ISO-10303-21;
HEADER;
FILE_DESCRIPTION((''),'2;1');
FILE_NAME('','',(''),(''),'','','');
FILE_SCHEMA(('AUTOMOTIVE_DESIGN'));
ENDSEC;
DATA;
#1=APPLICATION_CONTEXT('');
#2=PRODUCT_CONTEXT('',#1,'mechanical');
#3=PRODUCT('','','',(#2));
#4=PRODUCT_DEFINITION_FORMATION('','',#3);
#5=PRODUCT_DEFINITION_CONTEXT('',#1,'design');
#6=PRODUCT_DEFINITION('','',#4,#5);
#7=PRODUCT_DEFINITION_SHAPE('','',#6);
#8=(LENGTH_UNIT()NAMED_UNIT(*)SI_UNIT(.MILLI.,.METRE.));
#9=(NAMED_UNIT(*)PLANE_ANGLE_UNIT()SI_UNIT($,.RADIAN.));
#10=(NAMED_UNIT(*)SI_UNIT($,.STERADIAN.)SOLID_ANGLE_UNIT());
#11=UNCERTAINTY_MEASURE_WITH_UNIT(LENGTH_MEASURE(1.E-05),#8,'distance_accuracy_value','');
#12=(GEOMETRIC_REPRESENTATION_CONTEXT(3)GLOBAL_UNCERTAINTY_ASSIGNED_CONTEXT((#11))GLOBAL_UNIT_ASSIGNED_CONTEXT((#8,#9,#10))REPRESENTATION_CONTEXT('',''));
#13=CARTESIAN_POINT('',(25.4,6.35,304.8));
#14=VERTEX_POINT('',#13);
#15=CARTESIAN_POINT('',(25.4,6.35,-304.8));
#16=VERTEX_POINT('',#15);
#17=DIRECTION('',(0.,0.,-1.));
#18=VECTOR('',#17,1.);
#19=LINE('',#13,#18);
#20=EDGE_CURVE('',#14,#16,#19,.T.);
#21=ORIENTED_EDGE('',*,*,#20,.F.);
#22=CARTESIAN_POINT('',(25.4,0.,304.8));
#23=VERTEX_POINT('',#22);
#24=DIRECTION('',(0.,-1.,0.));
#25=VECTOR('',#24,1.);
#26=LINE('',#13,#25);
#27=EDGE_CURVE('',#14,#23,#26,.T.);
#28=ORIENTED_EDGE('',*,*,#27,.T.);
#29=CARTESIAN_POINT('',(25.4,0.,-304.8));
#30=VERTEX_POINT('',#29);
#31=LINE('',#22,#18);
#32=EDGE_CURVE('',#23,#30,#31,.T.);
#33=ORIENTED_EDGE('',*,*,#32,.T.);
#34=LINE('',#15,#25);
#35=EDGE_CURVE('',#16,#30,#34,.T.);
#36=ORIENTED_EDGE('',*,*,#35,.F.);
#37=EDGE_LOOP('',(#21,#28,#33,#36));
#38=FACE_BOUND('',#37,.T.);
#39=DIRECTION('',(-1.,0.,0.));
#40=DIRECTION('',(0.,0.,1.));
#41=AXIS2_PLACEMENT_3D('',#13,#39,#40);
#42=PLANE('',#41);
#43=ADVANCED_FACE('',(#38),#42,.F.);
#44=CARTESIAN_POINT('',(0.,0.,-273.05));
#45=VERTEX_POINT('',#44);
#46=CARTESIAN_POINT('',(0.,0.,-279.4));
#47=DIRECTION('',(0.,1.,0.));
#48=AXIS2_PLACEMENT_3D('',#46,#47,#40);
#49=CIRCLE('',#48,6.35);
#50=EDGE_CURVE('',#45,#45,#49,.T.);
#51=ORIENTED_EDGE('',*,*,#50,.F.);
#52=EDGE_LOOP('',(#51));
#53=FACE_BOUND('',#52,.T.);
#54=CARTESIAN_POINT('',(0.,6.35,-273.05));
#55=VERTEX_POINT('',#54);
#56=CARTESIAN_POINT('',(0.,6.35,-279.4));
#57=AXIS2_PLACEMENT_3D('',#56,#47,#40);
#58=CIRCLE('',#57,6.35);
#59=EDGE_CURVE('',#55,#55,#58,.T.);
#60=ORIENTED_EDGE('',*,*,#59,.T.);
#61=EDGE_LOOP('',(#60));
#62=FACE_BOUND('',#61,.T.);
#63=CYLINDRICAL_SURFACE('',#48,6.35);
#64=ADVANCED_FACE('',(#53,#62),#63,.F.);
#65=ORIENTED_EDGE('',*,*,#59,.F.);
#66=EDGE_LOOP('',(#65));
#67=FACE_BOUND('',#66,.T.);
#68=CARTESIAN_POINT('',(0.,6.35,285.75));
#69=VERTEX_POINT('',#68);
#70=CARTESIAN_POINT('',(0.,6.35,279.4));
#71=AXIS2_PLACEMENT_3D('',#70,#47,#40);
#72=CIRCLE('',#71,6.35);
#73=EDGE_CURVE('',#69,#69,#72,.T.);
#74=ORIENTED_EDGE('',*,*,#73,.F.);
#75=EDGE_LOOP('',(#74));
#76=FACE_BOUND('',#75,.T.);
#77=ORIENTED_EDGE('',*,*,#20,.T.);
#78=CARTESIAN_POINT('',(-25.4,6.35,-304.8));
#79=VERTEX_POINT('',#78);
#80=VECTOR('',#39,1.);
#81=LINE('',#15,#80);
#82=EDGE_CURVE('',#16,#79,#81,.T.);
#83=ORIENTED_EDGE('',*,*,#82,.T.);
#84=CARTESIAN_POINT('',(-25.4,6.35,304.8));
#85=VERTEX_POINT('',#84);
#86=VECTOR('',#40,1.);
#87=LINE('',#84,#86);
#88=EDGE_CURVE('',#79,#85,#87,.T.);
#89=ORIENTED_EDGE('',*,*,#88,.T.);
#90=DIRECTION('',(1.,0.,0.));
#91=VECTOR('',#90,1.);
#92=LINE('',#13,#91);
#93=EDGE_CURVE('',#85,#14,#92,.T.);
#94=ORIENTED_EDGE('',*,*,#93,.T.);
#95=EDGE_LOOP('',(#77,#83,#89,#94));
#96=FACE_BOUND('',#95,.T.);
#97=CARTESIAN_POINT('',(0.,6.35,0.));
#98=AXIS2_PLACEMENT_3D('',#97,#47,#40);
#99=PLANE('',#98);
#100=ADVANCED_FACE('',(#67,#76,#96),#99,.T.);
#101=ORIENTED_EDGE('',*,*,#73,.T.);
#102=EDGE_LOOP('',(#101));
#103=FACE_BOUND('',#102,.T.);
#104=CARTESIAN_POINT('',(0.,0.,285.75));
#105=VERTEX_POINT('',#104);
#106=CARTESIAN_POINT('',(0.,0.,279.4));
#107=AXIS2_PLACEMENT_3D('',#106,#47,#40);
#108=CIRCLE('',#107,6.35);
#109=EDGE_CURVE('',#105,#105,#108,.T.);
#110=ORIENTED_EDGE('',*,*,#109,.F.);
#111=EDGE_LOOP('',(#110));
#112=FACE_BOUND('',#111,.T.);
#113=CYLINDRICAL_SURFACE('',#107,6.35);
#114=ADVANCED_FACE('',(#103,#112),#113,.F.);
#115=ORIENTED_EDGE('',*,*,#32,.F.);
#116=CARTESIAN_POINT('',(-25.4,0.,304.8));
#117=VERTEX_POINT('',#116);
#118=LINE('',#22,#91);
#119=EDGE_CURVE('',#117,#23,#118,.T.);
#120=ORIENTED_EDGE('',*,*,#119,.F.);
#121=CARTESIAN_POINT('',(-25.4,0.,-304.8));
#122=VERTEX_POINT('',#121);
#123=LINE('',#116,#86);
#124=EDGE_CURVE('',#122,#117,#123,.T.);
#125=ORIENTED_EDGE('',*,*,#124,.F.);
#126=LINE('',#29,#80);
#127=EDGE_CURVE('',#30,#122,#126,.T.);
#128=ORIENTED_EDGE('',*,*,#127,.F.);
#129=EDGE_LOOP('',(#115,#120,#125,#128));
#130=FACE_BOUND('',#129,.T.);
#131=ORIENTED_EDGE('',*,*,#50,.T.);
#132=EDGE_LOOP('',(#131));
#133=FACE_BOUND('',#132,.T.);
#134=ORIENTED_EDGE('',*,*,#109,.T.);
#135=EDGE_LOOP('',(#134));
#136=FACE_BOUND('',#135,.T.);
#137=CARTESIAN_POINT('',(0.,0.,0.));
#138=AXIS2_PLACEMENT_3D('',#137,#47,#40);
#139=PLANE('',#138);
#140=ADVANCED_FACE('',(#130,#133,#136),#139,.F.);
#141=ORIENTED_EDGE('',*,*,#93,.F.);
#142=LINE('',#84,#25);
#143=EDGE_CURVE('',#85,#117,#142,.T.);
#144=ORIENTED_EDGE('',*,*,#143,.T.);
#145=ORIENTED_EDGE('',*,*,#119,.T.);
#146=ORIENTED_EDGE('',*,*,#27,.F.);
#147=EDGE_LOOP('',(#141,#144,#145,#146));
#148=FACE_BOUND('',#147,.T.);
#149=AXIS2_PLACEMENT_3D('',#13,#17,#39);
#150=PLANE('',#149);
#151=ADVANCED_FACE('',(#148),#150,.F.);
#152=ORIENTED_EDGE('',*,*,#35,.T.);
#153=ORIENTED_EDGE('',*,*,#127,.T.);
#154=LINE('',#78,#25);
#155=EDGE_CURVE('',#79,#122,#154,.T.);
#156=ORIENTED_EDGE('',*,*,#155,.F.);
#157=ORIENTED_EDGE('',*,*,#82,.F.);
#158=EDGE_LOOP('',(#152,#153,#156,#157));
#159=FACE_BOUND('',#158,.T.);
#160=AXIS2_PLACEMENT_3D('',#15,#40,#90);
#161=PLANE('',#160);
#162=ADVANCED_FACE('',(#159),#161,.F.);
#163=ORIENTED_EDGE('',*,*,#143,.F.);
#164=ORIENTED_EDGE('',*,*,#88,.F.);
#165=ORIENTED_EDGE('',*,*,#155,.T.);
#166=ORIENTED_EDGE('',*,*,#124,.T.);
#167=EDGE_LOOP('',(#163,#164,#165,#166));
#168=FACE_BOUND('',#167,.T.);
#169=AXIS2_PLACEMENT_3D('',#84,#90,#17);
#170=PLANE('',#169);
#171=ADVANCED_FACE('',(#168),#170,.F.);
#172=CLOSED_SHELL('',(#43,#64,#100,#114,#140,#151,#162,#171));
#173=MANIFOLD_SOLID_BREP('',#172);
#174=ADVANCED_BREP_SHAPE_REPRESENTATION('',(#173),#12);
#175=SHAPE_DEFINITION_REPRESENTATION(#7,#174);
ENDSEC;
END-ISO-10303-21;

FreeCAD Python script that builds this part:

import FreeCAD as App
import Part
import Sketcher
from FreeCAD import Vector
Q = App.Units.Quantity


def add_polygon(sketch, points):
    """Adds a closed chain of lines whose ends are joined by coincident constraints."""
    first, n = sketch.GeometryCount, len(points)
    for a, b in zip(points, points[1:] + points[:1]):
        sketch.addGeometry(Part.LineSegment(App.Vector(*a, 0), App.Vector(*b, 0)), False)
    for i in range(n):
        sketch.addConstraint(Sketcher.Constraint("Coincident", first + i, 2, first + (i + 1) % n, 1))

doc = App.newDocument("Part")
body = doc.addObject("PartDesign::Body", "Body")

# Sketch on XZ plane
sketch1 = body.newObject("Sketcher::SketchObject", "Sketch")
sketch1.AttachmentSupport = (doc.getObject("XZ_Plane"), [""])
sketch1.MapMode = "FlatFace"
add_polygon(sketch1, [(-25, -305), (-25, 305), (25, 305), (25, -305)])  # lines 0-3
sketch1.addConstraint(Sketcher.Constraint("Vertical", 0))
sketch1.addConstraint(Sketcher.Constraint("Horizontal", 1))
sketch1.addConstraint(Sketcher.Constraint("Vertical", 2))
sketch1.addConstraint(Sketcher.Constraint("Horizontal", 3))
sketch1.addConstraint(Sketcher.Constraint("Symmetric", 0, 2, 2, 2, -1, 1))
sketch1.addConstraint(Sketcher.Constraint("DistanceX", 1, 1, 1, 2, Q("2 in")))
sketch1.addConstraint(Sketcher.Constraint("DistanceY", 0, 1, 0, 2, Q("24 in")))
pad1 = body.newObject("PartDesign::Pad", "Pad")
pad1.Profile = sketch1
pad1.Length = Q("0.25 in")
pad1.Reversed = True

# Sketch on XZ plane
sketch2 = body.newObject("Sketcher::SketchObject", "Sketch001")
sketch2.AttachmentSupport = (doc.getObject("XZ_Plane"), [""])
sketch2.MapMode = "FlatFace"
sketch2.AttachmentOffset = App.Placement(Vector(0, 0, -0.25 * 25.4), App.Rotation())
sketch2.addGeometry(Part.Circle(Vector(0, -279, 0), Vector(0, 0, 1), 6), False)
sketch2.addGeometry(Part.Circle(Vector(0, 279, 0), Vector(0, 0, 1), 6), False)
sketch2.addConstraint(Sketcher.Constraint("Equal", 0, 1))
sketch2.addConstraint(Sketcher.Constraint("Symmetric", 0, 3, 1, 3, -1, 1))
sketch2.addConstraint(Sketcher.Constraint("PointOnObject", 0, 3, -2))
sketch2.addConstraint(Sketcher.Constraint("Diameter", 0, Q("0.5 in")))
sketch2.addConstraint(Sketcher.Constraint("DistanceY", 0, 3, -1, 1, Q("11 in")))
pocket1 = body.newObject("PartDesign::Pocket", "Pocket")
pocket1.Profile = sketch2
pocket1.Type = "ThroughAll"
pocket1.Reversed = True

doc.recompute()
